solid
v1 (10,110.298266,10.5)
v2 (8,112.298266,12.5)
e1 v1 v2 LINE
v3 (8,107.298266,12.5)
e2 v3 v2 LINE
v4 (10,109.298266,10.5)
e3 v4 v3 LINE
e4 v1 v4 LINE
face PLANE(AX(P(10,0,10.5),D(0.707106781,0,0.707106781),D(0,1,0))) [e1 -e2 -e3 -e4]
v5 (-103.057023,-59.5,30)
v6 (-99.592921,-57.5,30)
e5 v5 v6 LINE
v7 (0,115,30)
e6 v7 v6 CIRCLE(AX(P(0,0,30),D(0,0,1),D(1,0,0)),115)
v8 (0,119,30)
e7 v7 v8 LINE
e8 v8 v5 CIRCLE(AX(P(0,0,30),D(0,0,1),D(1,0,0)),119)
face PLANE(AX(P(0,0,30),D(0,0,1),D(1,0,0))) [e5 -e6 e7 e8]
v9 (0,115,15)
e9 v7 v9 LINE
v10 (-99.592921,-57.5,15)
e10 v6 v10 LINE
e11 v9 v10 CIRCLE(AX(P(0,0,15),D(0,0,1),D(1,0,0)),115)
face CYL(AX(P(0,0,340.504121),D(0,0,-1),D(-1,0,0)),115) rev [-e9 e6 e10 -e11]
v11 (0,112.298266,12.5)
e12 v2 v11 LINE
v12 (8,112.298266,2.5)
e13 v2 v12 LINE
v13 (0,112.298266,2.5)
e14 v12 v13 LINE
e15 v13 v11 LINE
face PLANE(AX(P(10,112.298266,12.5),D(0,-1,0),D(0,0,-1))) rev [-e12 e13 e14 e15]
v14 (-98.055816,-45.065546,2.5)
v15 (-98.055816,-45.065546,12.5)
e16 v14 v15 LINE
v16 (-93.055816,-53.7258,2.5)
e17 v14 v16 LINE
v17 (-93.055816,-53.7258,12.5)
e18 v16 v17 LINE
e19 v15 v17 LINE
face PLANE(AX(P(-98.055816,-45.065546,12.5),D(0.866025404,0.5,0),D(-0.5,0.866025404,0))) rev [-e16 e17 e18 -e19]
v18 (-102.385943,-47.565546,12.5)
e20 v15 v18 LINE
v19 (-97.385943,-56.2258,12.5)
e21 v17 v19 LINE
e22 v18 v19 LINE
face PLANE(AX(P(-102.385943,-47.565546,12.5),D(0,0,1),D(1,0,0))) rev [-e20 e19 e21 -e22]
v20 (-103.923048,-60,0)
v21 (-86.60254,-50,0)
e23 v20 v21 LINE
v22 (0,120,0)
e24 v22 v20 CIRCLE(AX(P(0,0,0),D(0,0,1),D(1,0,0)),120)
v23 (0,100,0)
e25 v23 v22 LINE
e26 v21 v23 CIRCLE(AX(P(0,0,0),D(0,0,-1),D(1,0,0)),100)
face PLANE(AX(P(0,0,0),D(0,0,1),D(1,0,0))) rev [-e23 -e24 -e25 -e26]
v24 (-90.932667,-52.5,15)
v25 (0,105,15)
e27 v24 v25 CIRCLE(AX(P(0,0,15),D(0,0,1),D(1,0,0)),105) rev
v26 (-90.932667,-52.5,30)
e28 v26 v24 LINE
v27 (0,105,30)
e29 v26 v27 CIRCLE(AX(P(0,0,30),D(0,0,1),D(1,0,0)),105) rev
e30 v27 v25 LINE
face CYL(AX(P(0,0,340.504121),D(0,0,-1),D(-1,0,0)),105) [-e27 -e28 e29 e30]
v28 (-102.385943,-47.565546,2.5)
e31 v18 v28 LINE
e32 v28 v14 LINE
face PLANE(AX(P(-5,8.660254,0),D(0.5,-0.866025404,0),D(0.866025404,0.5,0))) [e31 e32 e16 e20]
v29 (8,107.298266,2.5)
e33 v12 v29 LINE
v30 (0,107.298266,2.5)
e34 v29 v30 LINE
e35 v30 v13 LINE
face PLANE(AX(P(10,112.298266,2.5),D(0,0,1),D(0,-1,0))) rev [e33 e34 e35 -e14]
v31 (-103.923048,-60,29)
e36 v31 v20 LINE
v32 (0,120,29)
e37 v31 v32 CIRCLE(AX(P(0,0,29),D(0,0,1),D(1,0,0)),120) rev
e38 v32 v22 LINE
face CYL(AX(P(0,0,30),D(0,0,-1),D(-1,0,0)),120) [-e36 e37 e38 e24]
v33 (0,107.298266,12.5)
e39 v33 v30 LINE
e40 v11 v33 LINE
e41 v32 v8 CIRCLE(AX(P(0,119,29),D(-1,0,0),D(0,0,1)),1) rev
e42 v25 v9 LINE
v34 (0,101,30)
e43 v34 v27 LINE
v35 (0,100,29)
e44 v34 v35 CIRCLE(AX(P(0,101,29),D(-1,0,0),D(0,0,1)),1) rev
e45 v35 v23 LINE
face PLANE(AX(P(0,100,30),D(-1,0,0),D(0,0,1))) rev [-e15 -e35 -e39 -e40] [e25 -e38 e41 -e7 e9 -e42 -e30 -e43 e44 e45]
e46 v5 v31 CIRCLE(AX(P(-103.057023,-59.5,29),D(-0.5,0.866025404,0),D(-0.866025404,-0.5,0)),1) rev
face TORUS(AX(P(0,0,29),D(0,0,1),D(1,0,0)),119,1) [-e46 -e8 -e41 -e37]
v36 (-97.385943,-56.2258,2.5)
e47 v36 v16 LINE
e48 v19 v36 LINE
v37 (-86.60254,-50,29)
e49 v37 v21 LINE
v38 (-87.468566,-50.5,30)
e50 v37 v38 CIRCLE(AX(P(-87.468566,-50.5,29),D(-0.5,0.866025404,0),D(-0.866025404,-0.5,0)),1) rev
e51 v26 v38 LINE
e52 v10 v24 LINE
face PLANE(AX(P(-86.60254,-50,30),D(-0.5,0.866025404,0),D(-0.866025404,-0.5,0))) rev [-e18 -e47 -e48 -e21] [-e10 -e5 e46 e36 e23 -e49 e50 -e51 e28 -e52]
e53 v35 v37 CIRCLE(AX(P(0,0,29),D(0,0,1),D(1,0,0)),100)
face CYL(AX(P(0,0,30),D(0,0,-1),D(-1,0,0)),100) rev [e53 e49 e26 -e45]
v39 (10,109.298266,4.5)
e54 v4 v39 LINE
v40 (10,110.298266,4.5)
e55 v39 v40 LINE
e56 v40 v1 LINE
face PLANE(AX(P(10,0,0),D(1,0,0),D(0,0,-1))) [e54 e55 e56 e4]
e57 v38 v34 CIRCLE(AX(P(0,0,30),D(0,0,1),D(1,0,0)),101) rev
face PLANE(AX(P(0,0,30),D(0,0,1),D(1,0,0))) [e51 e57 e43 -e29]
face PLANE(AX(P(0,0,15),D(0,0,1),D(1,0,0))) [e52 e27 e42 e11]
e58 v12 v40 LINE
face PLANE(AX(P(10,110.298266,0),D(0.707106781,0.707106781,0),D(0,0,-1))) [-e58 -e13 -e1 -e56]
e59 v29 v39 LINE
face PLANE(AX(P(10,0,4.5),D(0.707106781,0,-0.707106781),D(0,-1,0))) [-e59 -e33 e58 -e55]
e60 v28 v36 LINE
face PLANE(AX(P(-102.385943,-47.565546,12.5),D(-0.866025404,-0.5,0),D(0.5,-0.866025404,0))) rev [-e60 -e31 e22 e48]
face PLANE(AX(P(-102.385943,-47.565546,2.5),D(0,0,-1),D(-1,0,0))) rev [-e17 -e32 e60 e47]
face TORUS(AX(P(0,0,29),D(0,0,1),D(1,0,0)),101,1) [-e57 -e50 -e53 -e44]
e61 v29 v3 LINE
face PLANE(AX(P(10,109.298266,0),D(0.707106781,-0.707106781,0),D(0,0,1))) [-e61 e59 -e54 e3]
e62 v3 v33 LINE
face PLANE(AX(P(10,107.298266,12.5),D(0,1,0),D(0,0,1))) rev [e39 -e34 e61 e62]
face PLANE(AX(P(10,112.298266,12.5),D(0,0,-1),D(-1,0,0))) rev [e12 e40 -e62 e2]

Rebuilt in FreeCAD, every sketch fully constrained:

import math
import FreeCAD as App
import Part
import Sketcher

V = App.Vector
Q = App.Units.Quantity


def edges_at(feature, points):
    """Names of the edges that pass closest to the given points."""
    edges = feature.Shape.Edges
    near = lambda p: min(range(len(edges)), key=lambda i: edges[i].distToShape(Part.Vertex(*p))[0])
    return sorted({f"Edge{near(p) + 1}" for p in points})


def add_polygon(sketch, points):
    """Adds a closed chain of lines whose ends are joined by coincident constraints."""
    first, n = sketch.GeometryCount, len(points)
    for a, b in zip(points, points[1:] + points[:1]):
        sketch.addGeometry(Part.LineSegment(App.Vector(*a, 0), App.Vector(*b, 0)), False)
    for i in range(n):
        sketch.addConstraint(Sketcher.Constraint("Coincident", first + i, 2, first + (i + 1) % n, 1))

doc = App.newDocument("Part")
body = doc.addObject("PartDesign::Body", "Body")

# Sketch on XY plane
sketch1 = body.newObject("Sketcher::SketchObject", "Sketch")
sketch1.AttachmentSupport = (doc.getObject("XY_Plane"), [""])
sketch1.MapMode = "FlatFace"
sketch1.addGeometry(Part.LineSegment(V(0, 100, 0), V(0, 120, 0)), False)
sketch1.addGeometry(Part.ArcOfCircle(Part.Circle(V(0, 0, 0), V(0, 0, 1), 120), math.radians(90), math.radians(210)), False)
sketch1.addGeometry(Part.LineSegment(V(-104, -60, 0), V(-87, -50, 0)), False)
sketch1.addGeometry(Part.ArcOfCircle(Part.Circle(V(0, 0, 0), V(0, 0, 1), 100), math.radians(90), math.radians(210)), False)
sketch1.addConstraint(Sketcher.Constraint("Coincident", 0, 2, 1, 1))
sketch1.addConstraint(Sketcher.Constraint("Coincident", 1, 2, 2, 1))
sketch1.addConstraint(Sketcher.Constraint("Coincident", 2, 2, 3, 2))
sketch1.addConstraint(Sketcher.Constraint("Coincident", 3, 1, 0, 1))
sketch1.addConstraint(Sketcher.Constraint("Vertical", 0))
sketch1.addConstraint(Sketcher.Constraint("Coincident", 1, 3, -1, 1))
sketch1.addConstraint(Sketcher.Constraint("Coincident", 3, 3, -1, 1))
sketch1.addConstraint(Sketcher.Constraint("PointOnObject", 0, 2, -2))
sketch1.addConstraint(Sketcher.Constraint("Radius", 1, Q("120 mm")))
sketch1.addConstraint(Sketcher.Constraint("Radius", 3, Q("100 mm")))
sketch1.addConstraint(Sketcher.Constraint("Angle", 2, Q("30 deg")))
sketch1.addConstraint(Sketcher.Constraint("DistanceY", 1, 2, -1, 1, Q("60 mm")))
pad1 = body.newObject("PartDesign::Pad", "Pad")
pad1.Profile = sketch1
pad1.Length = 30

# Sketch on XY plane
sketch2 = body.newObject("Sketcher::SketchObject", "Sketch001")
sketch2.AttachmentSupport = (doc.getObject("XY_Plane"), [""])
sketch2.MapMode = "FlatFace"
sketch2.AttachmentOffset = App.Placement(V(0, 0, 30), App.Rotation())
sketch2.addGeometry(Part.ArcOfCircle(Part.Circle(V(0, 0, 0), V(0, 0, 1), 105), math.radians(90), math.radians(210)), False)
sketch2.addGeometry(Part.LineSegment(V(0, 105, 0), V(0, 115, 0)), False)
sketch2.addGeometry(Part.ArcOfCircle(Part.Circle(V(0, 0, 0), V(0, 0, 1), 115), math.radians(90), math.radians(210)), False)
sketch2.addGeometry(Part.LineSegment(V(-100, -58, 0), V(-91, -52, 0)), False)
sketch2.addConstraint(Sketcher.Constraint("Coincident", 0, 1, 1, 1))
sketch2.addConstraint(Sketcher.Constraint("Coincident", 1, 2, 2, 1))
sketch2.addConstraint(Sketcher.Constraint("Coincident", 2, 2, 3, 1))
sketch2.addConstraint(Sketcher.Constraint("Coincident", 3, 2, 0, 2))
sketch2.addConstraint(Sketcher.Constraint("Vertical", 1))
sketch2.addConstraint(Sketcher.Constraint("Coincident", 0, 3, -1, 1))
sketch2.addConstraint(Sketcher.Constraint("Coincident", 2, 3, -1, 1))
sketch2.addConstraint(Sketcher.Constraint("PointOnObject", 0, 1, -2))
sketch2.addConstraint(Sketcher.Constraint("Radius", 0, Q("105 mm")))
sketch2.addConstraint(Sketcher.Constraint("Radius", 2, Q("115 mm")))
sketch2.addConstraint(Sketcher.Constraint("Angle", 3, Q("30 deg")))
sketch2.addConstraint(Sketcher.Constraint("DistanceY", 2, 2, -1, 1, Q("57.5 mm")))
pocket1 = body.newObject("PartDesign::Pocket", "Pocket")
pocket1.Profile = sketch2
pocket1.Type = "TwoLengths"
pocket1.Length = 173.336879
pocket1.Length2 = 15
pocket1.Reversed = True

# Sketch on YZ plane
sketch3 = body.newObject("Sketcher::SketchObject", "Sketch002")
sketch3.AttachmentSupport = (doc.getObject("YZ_Plane"), [""])
sketch3.MapMode = "FlatFace"
add_polygon(sketch3, [(112, 12), (107, 12), (107, 2), (112, 2)])  # lines 0-3
sketch3.addConstraint(Sketcher.Constraint("Horizontal", 0))
sketch3.addConstraint(Sketcher.Constraint("Vertical", 1))
sketch3.addConstraint(Sketcher.Constraint("Horizontal", 2))
sketch3.addConstraint(Sketcher.Constraint("Vertical", 3))
sketch3.addConstraint(Sketcher.Constraint("DistanceX", 0, 2, 0, 1, Q("5 mm")))
sketch3.addConstraint(Sketcher.Constraint("DistanceY", 1, 2, 1, 1, Q("10 mm")))
sketch3.addConstraint(Sketcher.Constraint("DistanceY", -1, 1, 0, 2, Q("12.5 mm")))
sketch3.addConstraint(Sketcher.Constraint("DistanceX", -1, 1, 0, 2, Q("107.298266 mm")))
pad2 = body.newObject("PartDesign::Pad", "Pad001")
pad2.Profile = sketch3
pad2.Length = 10
doc.recompute()

chamfer = body.newObject("PartDesign::Chamfer", "Chamfer")
chamfer.Base = (pad2, edges_at(pad2, [
    (10, 109.798, 2.5),
    (10, 112.298, 7.5),
    (10, 109.798, 12.5),
    (10, 107.298, 7.5),
]))
chamfer.Size = 2

# Sketch on an angled plane
sketch4 = body.newObject("Sketcher::SketchObject", "Sketch003")
sketch4.Placement = App.Placement(V(0, 0, 0), App.Rotation(V(0.866025404, 0.5, 0), V(0, 0, 1), V(0.5, -0.866025404, 0), "ZXY"))
add_polygon(sketch4, [(-112, 13), (-112, 3), (-107, 3), (-107, 13)])  # lines 0-3
sketch4.addConstraint(Sketcher.Constraint("Vertical", 0))
sketch4.addConstraint(Sketcher.Constraint("Horizontal", 1))
sketch4.addConstraint(Sketcher.Constraint("Vertical", 2))
sketch4.addConstraint(Sketcher.Constraint("Horizontal", 3))
sketch4.addConstraint(Sketcher.Constraint("DistanceX", 1, 1, 1, 2, Q("5 mm")))
sketch4.addConstraint(Sketcher.Constraint("DistanceY", 0, 2, 0, 1, Q("10 mm")))
sketch4.addConstraint(Sketcher.Constraint("DistanceY", -1, 1, 0, 2, Q("2.5 mm")))
sketch4.addConstraint(Sketcher.Constraint("DistanceX", 0, 2, -1, 1, Q("112.451601 mm")))
pocket2 = body.newObject("PartDesign::Pocket", "Pocket001")
pocket2.Profile = sketch4
pocket2.Length = 10
doc.recompute()

fillet = body.newObject("PartDesign::Fillet", "Fillet")
fillet.Base = (pocket2, edges_at(pocket2, [(-86.603, 50, 30), (-103.923, 60, 30)]))
fillet.Radius = 1

doc.recompute()
